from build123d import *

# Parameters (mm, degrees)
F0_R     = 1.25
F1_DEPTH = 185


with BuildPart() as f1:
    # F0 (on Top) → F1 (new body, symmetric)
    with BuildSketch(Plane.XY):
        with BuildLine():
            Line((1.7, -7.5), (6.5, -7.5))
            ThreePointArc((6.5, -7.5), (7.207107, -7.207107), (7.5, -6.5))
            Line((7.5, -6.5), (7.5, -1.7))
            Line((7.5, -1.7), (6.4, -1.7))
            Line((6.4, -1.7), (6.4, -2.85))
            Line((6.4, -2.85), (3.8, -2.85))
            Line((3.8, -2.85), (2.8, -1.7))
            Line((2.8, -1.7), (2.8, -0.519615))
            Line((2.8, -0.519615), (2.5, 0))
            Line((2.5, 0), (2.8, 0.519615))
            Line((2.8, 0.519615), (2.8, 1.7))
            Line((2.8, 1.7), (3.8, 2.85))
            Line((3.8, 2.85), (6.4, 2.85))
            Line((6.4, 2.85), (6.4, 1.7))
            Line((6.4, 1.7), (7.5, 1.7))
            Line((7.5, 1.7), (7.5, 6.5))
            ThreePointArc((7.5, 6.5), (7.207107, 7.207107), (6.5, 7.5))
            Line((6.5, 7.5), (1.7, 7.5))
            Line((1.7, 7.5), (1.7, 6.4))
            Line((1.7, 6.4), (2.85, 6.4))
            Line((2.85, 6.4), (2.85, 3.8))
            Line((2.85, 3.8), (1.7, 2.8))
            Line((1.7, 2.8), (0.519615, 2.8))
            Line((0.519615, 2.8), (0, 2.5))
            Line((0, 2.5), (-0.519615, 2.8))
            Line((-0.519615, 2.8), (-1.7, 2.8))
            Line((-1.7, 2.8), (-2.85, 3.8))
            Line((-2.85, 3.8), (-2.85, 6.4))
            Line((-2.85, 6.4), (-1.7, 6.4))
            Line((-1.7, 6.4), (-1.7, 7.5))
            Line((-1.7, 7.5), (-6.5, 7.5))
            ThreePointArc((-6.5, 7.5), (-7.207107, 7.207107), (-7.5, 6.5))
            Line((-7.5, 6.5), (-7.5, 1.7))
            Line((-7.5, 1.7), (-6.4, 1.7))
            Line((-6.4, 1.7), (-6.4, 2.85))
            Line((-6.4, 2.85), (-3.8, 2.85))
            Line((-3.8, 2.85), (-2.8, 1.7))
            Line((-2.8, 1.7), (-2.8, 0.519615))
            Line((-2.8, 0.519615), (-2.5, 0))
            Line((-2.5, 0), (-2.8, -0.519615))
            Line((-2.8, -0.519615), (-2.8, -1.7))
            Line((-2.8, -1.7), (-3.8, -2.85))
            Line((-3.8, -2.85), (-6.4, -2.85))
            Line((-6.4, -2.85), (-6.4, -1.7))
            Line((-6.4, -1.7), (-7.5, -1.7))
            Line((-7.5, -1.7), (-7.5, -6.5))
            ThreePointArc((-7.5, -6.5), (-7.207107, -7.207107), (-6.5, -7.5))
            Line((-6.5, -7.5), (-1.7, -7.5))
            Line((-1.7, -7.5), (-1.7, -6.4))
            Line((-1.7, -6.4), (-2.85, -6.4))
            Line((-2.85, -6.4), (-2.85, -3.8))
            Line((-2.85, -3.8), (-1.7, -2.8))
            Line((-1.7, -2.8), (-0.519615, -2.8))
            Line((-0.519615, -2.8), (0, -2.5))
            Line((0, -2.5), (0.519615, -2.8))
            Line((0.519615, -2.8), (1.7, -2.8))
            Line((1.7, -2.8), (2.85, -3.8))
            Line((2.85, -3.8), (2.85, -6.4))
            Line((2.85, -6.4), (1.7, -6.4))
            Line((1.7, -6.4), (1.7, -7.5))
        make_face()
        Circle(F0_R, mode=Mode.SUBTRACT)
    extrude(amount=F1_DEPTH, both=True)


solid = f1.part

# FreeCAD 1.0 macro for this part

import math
import FreeCAD as App
import Part
import Sketcher
from FreeCAD import Vector
Q = App.Units.Quantity

doc = App.newDocument("Part")
body = doc.addObject("PartDesign::Body", "Body")

# Sketch on XY plane
sketch1 = body.newObject("Sketcher::SketchObject", "Sketch")
sketch1.AttachmentSupport = (doc.getObject("XY_Plane"), [""])
sketch1.MapMode = "FlatFace"
sketch1.addGeometry(Part.LineSegment(Vector(1.7, -7.5, 0), Vector(6.5, -7.5, 0)), False)
sketch1.addGeometry(Part.ArcOfCircle(Part.Circle(Vector(6.5, -6.5, 0), Vector(0, 0, 1), 1), math.radians(-90), math.radians(0)), False)
sketch1.addGeometry(Part.LineSegment(Vector(7.5, -6.5, 0), Vector(7.5, -1.7, 0)), False)
sketch1.addGeometry(Part.LineSegment(Vector(7.5, -1.7, 0), Vector(6.4, -1.7, 0)), False)
sketch1.addGeometry(Part.LineSegment(Vector(6.4, -1.7, 0), Vector(6.4, -2.9, 0)), False)
sketch1.addGeometry(Part.LineSegment(Vector(6.4, -2.9, 0), Vector(3.8, -2.9, 0)), False)
sketch1.addGeometry(Part.LineSegment(Vector(3.8, -2.9, 0), Vector(2.8, -1.7, 0)), False)
sketch1.addGeometry(Part.LineSegment(Vector(2.8, -1.7, 0), Vector(2.8, -0.5, 0)), False)
sketch1.addGeometry(Part.LineSegment(Vector(2.8, -0.5, 0), Vector(2.5, 0, 0)), False)
sketch1.addGeometry(Part.LineSegment(Vector(2.5, 0, 0), Vector(2.8, 0.5, 0)), False)
sketch1.addGeometry(Part.LineSegment(Vector(2.8, 0.5, 0), Vector(2.8, 1.7, 0)), False)
sketch1.addGeometry(Part.LineSegment(Vector(2.8, 1.7, 0), Vector(3.8, 2.9, 0)), False)
sketch1.addGeometry(Part.LineSegment(Vector(3.8, 2.9, 0), Vector(6.4, 2.9, 0)), False)
sketch1.addGeometry(Part.LineSegment(Vector(6.4, 2.9, 0), Vector(6.4, 1.7, 0)), False)
sketch1.addGeometry(Part.LineSegment(Vector(6.4, 1.7, 0), Vector(7.5, 1.7, 0)), False)
sketch1.addGeometry(Part.LineSegment(Vector(7.5, 1.7, 0), Vector(7.5, 6.5, 0)), False)
sketch1.addGeometry(Part.ArcOfCircle(Part.Circle(Vector(6.5, 6.5, 0), Vector(0, 0, 1), 1), math.radians(0), math.radians(90)), False)
sketch1.addGeometry(Part.LineSegment(Vector(6.5, 7.5, 0), Vector(1.7, 7.5, 0)), False)
sketch1.addGeometry(Part.LineSegment(Vector(1.7, 7.5, 0), Vector(1.7, 6.4, 0)), False)
sketch1.addGeometry(Part.LineSegment(Vector(1.7, 6.4, 0), Vector(2.9, 6.4, 0)), False)
sketch1.addGeometry(Part.LineSegment(Vector(2.9, 6.4, 0), Vector(2.9, 3.8, 0)), False)
sketch1.addGeometry(Part.LineSegment(Vector(2.9, 3.8, 0), Vector(1.7, 2.8, 0)), False)
sketch1.addGeometry(Part.LineSegment(Vector(1.7, 2.8, 0), Vector(0.5, 2.8, 0)), False)
sketch1.addGeometry(Part.LineSegment(Vector(0.5, 2.8, 0), Vector(0, 2.5, 0)), False)
sketch1.addGeometry(Part.LineSegment(Vector(0, 2.5, 0), Vector(-0.5, 2.8, 0)), False)
sketch1.addGeometry(Part.LineSegment(Vector(-0.5, 2.8, 0), Vector(-1.7, 2.8, 0)), False)
sketch1.addGeometry(Part.LineSegment(Vector(-1.7, 2.8, 0), Vector(-2.9, 3.8, 0)), False)
sketch1.addGeometry(Part.LineSegment(Vector(-2.9, 3.8, 0), Vector(-2.9, 6.4, 0)), False)
sketch1.addGeometry(Part.LineSegment(Vector(-2.9, 6.4, 0), Vector(-1.7, 6.4, 0)), False)
sketch1.addGeometry(Part.LineSegment(Vector(-1.7, 6.4, 0), Vector(-1.7, 7.5, 0)), False)
sketch1.addGeometry(Part.LineSegment(Vector(-1.7, 7.5, 0), Vector(-6.5, 7.5, 0)), False)
sketch1.addGeometry(Part.ArcOfCircle(Part.Circle(Vector(-6.5, 6.5, 0), Vector(0, 0, 1), 1), math.radians(90), math.radians(180)), False)
sketch1.addGeometry(Part.LineSegment(Vector(-7.5, 6.5, 0), Vector(-7.5, 1.7, 0)), False)
sketch1.addGeometry(Part.LineSegment(Vector(-7.5, 1.7, 0), Vector(-6.4, 1.7, 0)), False)
sketch1.addGeometry(Part.LineSegment(Vector(-6.4, 1.7, 0), Vector(-6.4, 2.9, 0)), False)
sketch1.addGeometry(Part.LineSegment(Vector(-6.4, 2.9, 0), Vector(-3.8, 2.9, 0)), False)
sketch1.addGeometry(Part.LineSegment(Vector(-3.8, 2.9, 0), Vector(-2.8, 1.7, 0)), False)
sketch1.addGeometry(Part.LineSegment(Vector(-2.8, 1.7, 0), Vector(-2.8, 0.5, 0)), False)
sketch1.addGeometry(Part.LineSegment(Vector(-2.8, 0.5, 0), Vector(-2.5, 0, 0)), False)
sketch1.addGeometry(Part.LineSegment(Vector(-2.5, 0, 0), Vector(-2.8, -0.5, 0)), False)
sketch1.addGeometry(Part.LineSegment(Vector(-2.8, -0.5, 0), Vector(-2.8, -1.7, 0)), False)
sketch1.addGeometry(Part.LineSegment(Vector(-2.8, -1.7, 0), Vector(-3.8, -2.9, 0)), False)
sketch1.addGeometry(Part.LineSegment(Vector(-3.8, -2.9, 0), Vector(-6.4, -2.9, 0)), False)
sketch1.addGeometry(Part.LineSegment(Vector(-6.4, -2.9, 0), Vector(-6.4, -1.7, 0)), False)
sketch1.addGeometry(Part.LineSegment(Vector(-6.4, -1.7, 0), Vector(-7.5, -1.7, 0)), False)
sketch1.addGeometry(Part.LineSegment(Vector(-7.5, -1.7, 0), Vector(-7.5, -6.5, 0)), False)
sketch1.addGeometry(Part.ArcOfCircle(Part.Circle(Vector(-6.5, -6.5, 0), Vector(0, 0, 1), 1), math.radians(180), math.radians(270)), False)
sketch1.addGeometry(Part.LineSegment(Vector(-6.5, -7.5, 0), Vector(-1.7, -7.5, 0)), False)
sketch1.addGeometry(Part.LineSegment(Vector(-1.7, -7.5, 0), Vector(-1.7, -6.4, 0)), False)
sketch1.addGeometry(Part.LineSegment(Vector(-1.7, -6.4, 0), Vector(-2.9, -6.4, 0)), False)
sketch1.addGeometry(Part.LineSegment(Vector(-2.9, -6.4, 0), Vector(-2.9, -3.8, 0)), False)
sketch1.addGeometry(Part.LineSegment(Vector(-2.9, -3.8, 0), Vector(-1.7, -2.8, 0)), False)
sketch1.addGeometry(Part.LineSegment(Vector(-1.7, -2.8, 0), Vector(-0.5, -2.8, 0)), False)
sketch1.addGeometry(Part.LineSegment(Vector(-0.5, -2.8, 0), Vector(0, -2.5, 0)), False)
sketch1.addGeometry(Part.LineSegment(Vector(0, -2.5, 0), Vector(0.5, -2.8, 0)), False)
sketch1.addGeometry(Part.LineSegment(Vector(0.5, -2.8, 0), Vector(1.7, -2.8, 0)), False)
sketch1.addGeometry(Part.LineSegment(Vector(1.7, -2.8, 0), Vector(2.9, -3.8, 0)), False)
sketch1.addGeometry(Part.LineSegment(Vector(2.9, -3.8, 0), Vector(2.9, -6.4, 0)), False)
sketch1.addGeometry(Part.LineSegment(Vector(2.9, -6.4, 0), Vector(1.7, -6.4, 0)), False)
sketch1.addGeometry(Part.LineSegment(Vector(1.7, -6.4, 0), Vector(1.7, -7.5, 0)), False)
sketch1.addGeometry(Part.Circle(Vector(0, 0, 0), Vector(0, 0, 1), 1.2), False)
sketch1.addConstraint(Sketcher.Constraint("Tangent", 0, 2, 1, 1))
sketch1.addConstraint(Sketcher.Constraint("Tangent", 1, 2, 2, 1))
sketch1.addConstraint(Sketcher.Constraint("Coincident", 2, 2, 3, 1))
sketch1.addConstraint(Sketcher.Constraint("Coincident", 3, 2, 4, 1))
sketch1.addConstraint(Sketcher.Constraint("Coincident", 4, 2, 5, 1))
sketch1.addConstraint(Sketcher.Constraint("Coincident", 5, 2, 6, 1))
sketch1.addConstraint(Sketcher.Constraint("Coincident", 6, 2, 7, 1))
sketch1.addConstraint(Sketcher.Constraint("Coincident", 7, 2, 8, 1))
sketch1.addConstraint(Sketcher.Constraint("Coincident", 8, 2, 9, 1))
sketch1.addConstraint(Sketcher.Constraint("Coincident", 9, 2, 10, 1))
sketch1.addConstraint(Sketcher.Constraint("Coincident", 10, 2, 11, 1))
sketch1.addConstraint(Sketcher.Constraint("Coincident", 11, 2, 12, 1))
sketch1.addConstraint(Sketcher.Constraint("Coincident", 12, 2, 13, 1))
sketch1.addConstraint(Sketcher.Constraint("Coincident", 13, 2, 14, 1))
sketch1.addConstraint(Sketcher.Constraint("Coincident", 14, 2, 15, 1))
sketch1.addConstraint(Sketcher.Constraint("Tangent", 15, 2, 16, 1))
sketch1.addConstraint(Sketcher.Constraint("Tangent", 16, 2, 17, 1))
sketch1.addConstraint(Sketcher.Constraint("Coincident", 17, 2, 18, 1))
sketch1.addConstraint(Sketcher.Constraint("Coincident", 18, 2, 19, 1))
sketch1.addConstraint(Sketcher.Constraint("Coincident", 19, 2, 20, 1))
sketch1.addConstraint(Sketcher.Constraint("Coincident", 20, 2, 21, 1))
sketch1.addConstraint(Sketcher.Constraint("Coincident", 21, 2, 22, 1))
sketch1.addConstraint(Sketcher.Constraint("Coincident", 22, 2, 23, 1))
sketch1.addConstraint(Sketcher.Constraint("Coincident", 23, 2, 24, 1))
sketch1.addConstraint(Sketcher.Constraint("Coincident", 24, 2, 25, 1))
sketch1.addConstraint(Sketcher.Constraint("Coincident", 25, 2, 26, 1))
sketch1.addConstraint(Sketcher.Constraint("Coincident", 26, 2, 27, 1))
sketch1.addConstraint(Sketcher.Constraint("Coincident", 27, 2, 28, 1))
sketch1.addConstraint(Sketcher.Constraint("Coincident", 28, 2, 29, 1))
sketch1.addConstraint(Sketcher.Constraint("Coincident", 29, 2, 30, 1))
sketch1.addConstraint(Sketcher.Constraint("Tangent", 30, 2, 31, 1))
sketch1.addConstraint(Sketcher.Constraint("Tangent", 31, 2, 32, 1))
sketch1.addConstraint(Sketcher.Constraint("Coincident", 32, 2, 33, 1))
sketch1.addConstraint(Sketcher.Constraint("Coincident", 33, 2, 34, 1))
sketch1.addConstraint(Sketcher.Constraint("Coincident", 34, 2, 35, 1))
sketch1.addConstraint(Sketcher.Constraint("Coincident", 35, 2, 36, 1))
sketch1.addConstraint(Sketcher.Constraint("Coincident", 36, 2, 37, 1))
sketch1.addConstraint(Sketcher.Constraint("Coincident", 37, 2, 38, 1))
sketch1.addConstraint(Sketcher.Constraint("Coincident", 38, 2, 39, 1))
sketch1.addConstraint(Sketcher.Constraint("Coincident", 39, 2, 40, 1))
sketch1.addConstraint(Sketcher.Constraint("Coincident", 40, 2, 41, 1))
sketch1.addConstraint(Sketcher.Constraint("Coincident", 41, 2, 42, 1))
sketch1.addConstraint(Sketcher.Constraint("Coincident", 42, 2, 43, 1))
sketch1.addConstraint(Sketcher.Constraint("Coincident", 43, 2, 44, 1))
sketch1.addConstraint(Sketcher.Constraint("Coincident", 44, 2, 45, 1))
sketch1.addConstraint(Sketcher.Constraint("Tangent", 45, 2, 46, 1))
sketch1.addConstraint(Sketcher.Constraint("Tangent", 46, 2, 47, 1))
sketch1.addConstraint(Sketcher.Constraint("Coincident", 47, 2, 48, 1))
sketch1.addConstraint(Sketcher.Constraint("Coincident", 48, 2, 49, 1))
sketch1.addConstraint(Sketcher.Constraint("Coincident", 49, 2, 50, 1))
sketch1.addConstraint(Sketcher.Constraint("Coincident", 50, 2, 51, 1))
sketch1.addConstraint(Sketcher.Constraint("Coincident", 51, 2, 52, 1))
sketch1.addConstraint(Sketcher.Constraint("Coincident", 52, 2, 53, 1))
sketch1.addConstraint(Sketcher.Constraint("Coincident", 53, 2, 54, 1))
sketch1.addConstraint(Sketcher.Constraint("Coincident", 54, 2, 55, 1))
sketch1.addConstraint(Sketcher.Constraint("Coincident", 55, 2, 56, 1))
sketch1.addConstraint(Sketcher.Constraint("Coincident", 56, 2, 57, 1))
sketch1.addConstraint(Sketcher.Constraint("Coincident", 57, 2, 58, 1))
sketch1.addConstraint(Sketcher.Constraint("Coincident", 58, 2, 59, 1))
sketch1.addConstraint(Sketcher.Constraint("Coincident", 59, 2, 0, 1))
sketch1.addConstraint(Sketcher.Constraint("Horizontal", 0))
sketch1.addConstraint(Sketcher.Constraint("Vertical", 2))
sketch1.addConstraint(Sketcher.Constraint("Horizontal", 3))
sketch1.addConstraint(Sketcher.Constraint("Vertical", 4))
sketch1.addConstraint(Sketcher.Constraint("Horizontal", 5))
sketch1.addConstraint(Sketcher.Constraint("Vertical", 7))
sketch1.addConstraint(Sketcher.Constraint("Vertical", 10))
sketch1.addConstraint(Sketcher.Constraint("Horizontal", 12))
sketch1.addConstraint(Sketcher.Constraint("Vertical", 13))
sketch1.addConstraint(Sketcher.Constraint("Horizontal", 14))
sketch1.addConstraint(Sketcher.Constraint("Vertical", 15))
sketch1.addConstraint(Sketcher.Constraint("Horizontal", 17))
sketch1.addConstraint(Sketcher.Constraint("Vertical", 18))
sketch1.addConstraint(Sketcher.Constraint("Horizontal", 19))
sketch1.addConstraint(Sketcher.Constraint("Vertical", 20))
sketch1.addConstraint(Sketcher.Constraint("Horizontal", 22))
sketch1.addConstraint(Sketcher.Constraint("Horizontal", 25))
sketch1.addConstraint(Sketcher.Constraint("Vertical", 27))
sketch1.addConstraint(Sketcher.Constraint("Horizontal", 28))
sketch1.addConstraint(Sketcher.Constraint("Vertical", 29))
sketch1.addConstraint(Sketcher.Constraint("Horizontal", 30))
sketch1.addConstraint(Sketcher.Constraint("Vertical", 32))
sketch1.addConstraint(Sketcher.Constraint("Horizontal", 33))
sketch1.addConstraint(Sketcher.Constraint("Vertical", 34))
sketch1.addConstraint(Sketcher.Constraint("Horizontal", 35))
sketch1.addConstraint(Sketcher.Constraint("Vertical", 37))
sketch1.addConstraint(Sketcher.Constraint("Vertical", 40))
sketch1.addConstraint(Sketcher.Constraint("Horizontal", 42))
sketch1.addConstraint(Sketcher.Constraint("Vertical", 43))
sketch1.addConstraint(Sketcher.Constraint("Horizontal", 44))
sketch1.addConstraint(Sketcher.Constraint("Vertical", 45))
sketch1.addConstraint(Sketcher.Constraint("Horizontal", 47))
sketch1.addConstraint(Sketcher.Constraint("Vertical", 48))
sketch1.addConstraint(Sketcher.Constraint("Horizontal", 49))
sketch1.addConstraint(Sketcher.Constraint("Vertical", 50))
sketch1.addConstraint(Sketcher.Constraint("Horizontal", 52))
sketch1.addConstraint(Sketcher.Constraint("Horizontal", 55))
sketch1.addConstraint(Sketcher.Constraint("Vertical", 57))
sketch1.addConstraint(Sketcher.Constraint("Horizontal", 58))
sketch1.addConstraint(Sketcher.Constraint("Vertical", 59))
sketch1.addConstraint(Sketcher.Constraint("Coincident", 60, 3, -1, 1))
sketch1.addConstraint(Sketcher.Constraint("Equal", 1, 16))
sketch1.addConstraint(Sketcher.Constraint("Equal", 16, 31))
sketch1.addConstraint(Sketcher.Constraint("Equal", 31, 46))
sketch1.addConstraint(Sketcher.Constraint("Symmetric", 1, 3, 31, 3, -1, 1))
sketch1.addConstraint(Sketcher.Constraint("Symmetric", 16, 3, 46, 3, -1, 1))
sketch1.addConstraint(Sketcher.Constraint("Symmetric", 3, 2, 33, 2, -1, 1))
sketch1.addConstraint(Sketcher.Constraint("Symmetric", 5, 2, 35, 2, -1, 1))
sketch1.addConstraint(Sketcher.Constraint("Symmetric", 6, 2, 36, 2, -1, 1))
sketch1.addConstraint(Sketcher.Constraint("Symmetric", 8, 2, 38, 2, -1, 1))
sketch1.addConstraint(Sketcher.Constraint("Symmetric", 9, 2, 39, 2, -1, 1))
sketch1.addConstraint(Sketcher.Constraint("Symmetric", 11, 2, 41, 2, -1, 1))
sketch1.addConstraint(Sketcher.Constraint("Symmetric", 13, 2, 43, 2, -1, 1))
sketch1.addConstraint(Sketcher.Constraint("Symmetric", 18, 2, 48, 2, -1, 1))
sketch1.addConstraint(Sketcher.Constraint("Symmetric", 20, 2, 50, 2, -1, 1))
sketch1.addConstraint(Sketcher.Constraint("Symmetric", 21, 2, 51, 2, -1, 1))
sketch1.addConstraint(Sketcher.Constraint("Symmetric", 23, 2, 53, 2, -1, 1))
sketch1.addConstraint(Sketcher.Constraint("Symmetric", 24, 2, 54, 2, -1, 1))
sketch1.addConstraint(Sketcher.Constraint("Symmetric", 26, 2, 56, 2, -1, 1))
sketch1.addConstraint(Sketcher.Constraint("Symmetric", 28, 2, 58, 2, -1, 1))
sketch1.addConstraint(Sketcher.Constraint("Symmetric", 16, 3, 31, 3, -2))
sketch1.addConstraint(Sketcher.Constraint("Symmetric", 22, 2, 24, 2, -2))
sketch1.addConstraint(Sketcher.Constraint("Symmetric", 20, 2, 26, 2, -2))
sketch1.addConstraint(Sketcher.Constraint("Symmetric", 18, 2, 28, 2, -2))
sketch1.addConstraint(Sketcher.Constraint("Symmetric", 13, 2, 33, 2, -2))
sketch1.addConstraint(Sketcher.Constraint("Symmetric", 11, 2, 35, 2, -2))
sketch1.addConstraint(Sketcher.Constraint("Symmetric", 10, 2, 36, 2, -2))
sketch1.addConstraint(Sketcher.Constraint("PointOnObject", 8, 2, -1))
sketch1.addConstraint(Sketcher.Constraint("PointOnObject", 23, 2, -2))
sketch1.addConstraint(Sketcher.Constraint("Perpendicular", 6, 21))
sketch1.addConstraint(Sketcher.Constraint("Perpendicular", 8, 23))
sketch1.addConstraint(Sketcher.Constraint("Perpendicular", 9, 24))
sketch1.addConstraint(Sketcher.Constraint("Perpendicular", 11, 26))
sketch1.addConstraint(Sketcher.Constraint("Perpendicular", 23, 38))
sketch1.addConstraint(Sketcher.Constraint("Perpendicular", 26, 41))
sketch1.addConstraint(Sketcher.Constraint("Perpendicular", 38, 53))
sketch1.addConstraint(Sketcher.Constraint("Perpendicular", 41, 56))
sketch1.addConstraint(Sketcher.Constraint("Horizontal", 3, 2, 6, 2))
sketch1.addConstraint(Sketcher.Constraint("Vertical", 18, 2, 21, 2))
sketch1.addConstraint(Sketcher.Constraint("Equal", 47, 2))
sketch1.addConstraint(Sketcher.Constraint("Equal", 58, 4))
sketch1.addConstraint(Sketcher.Constraint("Equal", 55, 7))
sketch1.addConstraint(Sketcher.Constraint("Equal", 44, 18))
sketch1.addConstraint(Sketcher.Constraint("Equal", 42, 20))
sketch1.addConstraint(Sketcher.Constraint("Equal", 9, 23))
sketch1.addConstraint(Sketcher.Constraint("Radius", 1, Q("0.999999 mm")))
sketch1.addConstraint(Sketcher.Constraint("Diameter", 60, Q("2.5 mm")))
sketch1.addConstraint(Sketcher.Constraint("Angle", 8, Q("120.000012 deg")))
sketch1.addConstraint(Sketcher.Constraint("DistanceX", 0, 1, 0, 2, Q("4.8 mm")))
sketch1.addConstraint(Sketcher.Constraint("DistanceX", 3, 2, 3, 1, Q("1.1 mm")))
sketch1.addConstraint(Sketcher.Constraint("DistanceX", 5, 2, 5, 1, Q("2.6 mm")))
sketch1.addConstraint(Sketcher.Constraint("Distance", 8, Q("0.6 mm")))
sketch1.addConstraint(Sketcher.Constraint("DistanceX", 19, 1, 19, 2, Q("1.15 mm")))
sketch1.addConstraint(Sketcher.Constraint("DistanceX", -1, 1, 1, 3, Q("6.500001 mm")))
sketch1.addConstraint(Sketcher.Constraint("DistanceX", -1, 1, 6, 2, Q("2.8 mm")))
pad1 = body.newObject("PartDesign::Pad", "Pad")
pad1.Profile = sketch1
pad1.Length = 370
pad1.Midplane = True

doc.recompute()
